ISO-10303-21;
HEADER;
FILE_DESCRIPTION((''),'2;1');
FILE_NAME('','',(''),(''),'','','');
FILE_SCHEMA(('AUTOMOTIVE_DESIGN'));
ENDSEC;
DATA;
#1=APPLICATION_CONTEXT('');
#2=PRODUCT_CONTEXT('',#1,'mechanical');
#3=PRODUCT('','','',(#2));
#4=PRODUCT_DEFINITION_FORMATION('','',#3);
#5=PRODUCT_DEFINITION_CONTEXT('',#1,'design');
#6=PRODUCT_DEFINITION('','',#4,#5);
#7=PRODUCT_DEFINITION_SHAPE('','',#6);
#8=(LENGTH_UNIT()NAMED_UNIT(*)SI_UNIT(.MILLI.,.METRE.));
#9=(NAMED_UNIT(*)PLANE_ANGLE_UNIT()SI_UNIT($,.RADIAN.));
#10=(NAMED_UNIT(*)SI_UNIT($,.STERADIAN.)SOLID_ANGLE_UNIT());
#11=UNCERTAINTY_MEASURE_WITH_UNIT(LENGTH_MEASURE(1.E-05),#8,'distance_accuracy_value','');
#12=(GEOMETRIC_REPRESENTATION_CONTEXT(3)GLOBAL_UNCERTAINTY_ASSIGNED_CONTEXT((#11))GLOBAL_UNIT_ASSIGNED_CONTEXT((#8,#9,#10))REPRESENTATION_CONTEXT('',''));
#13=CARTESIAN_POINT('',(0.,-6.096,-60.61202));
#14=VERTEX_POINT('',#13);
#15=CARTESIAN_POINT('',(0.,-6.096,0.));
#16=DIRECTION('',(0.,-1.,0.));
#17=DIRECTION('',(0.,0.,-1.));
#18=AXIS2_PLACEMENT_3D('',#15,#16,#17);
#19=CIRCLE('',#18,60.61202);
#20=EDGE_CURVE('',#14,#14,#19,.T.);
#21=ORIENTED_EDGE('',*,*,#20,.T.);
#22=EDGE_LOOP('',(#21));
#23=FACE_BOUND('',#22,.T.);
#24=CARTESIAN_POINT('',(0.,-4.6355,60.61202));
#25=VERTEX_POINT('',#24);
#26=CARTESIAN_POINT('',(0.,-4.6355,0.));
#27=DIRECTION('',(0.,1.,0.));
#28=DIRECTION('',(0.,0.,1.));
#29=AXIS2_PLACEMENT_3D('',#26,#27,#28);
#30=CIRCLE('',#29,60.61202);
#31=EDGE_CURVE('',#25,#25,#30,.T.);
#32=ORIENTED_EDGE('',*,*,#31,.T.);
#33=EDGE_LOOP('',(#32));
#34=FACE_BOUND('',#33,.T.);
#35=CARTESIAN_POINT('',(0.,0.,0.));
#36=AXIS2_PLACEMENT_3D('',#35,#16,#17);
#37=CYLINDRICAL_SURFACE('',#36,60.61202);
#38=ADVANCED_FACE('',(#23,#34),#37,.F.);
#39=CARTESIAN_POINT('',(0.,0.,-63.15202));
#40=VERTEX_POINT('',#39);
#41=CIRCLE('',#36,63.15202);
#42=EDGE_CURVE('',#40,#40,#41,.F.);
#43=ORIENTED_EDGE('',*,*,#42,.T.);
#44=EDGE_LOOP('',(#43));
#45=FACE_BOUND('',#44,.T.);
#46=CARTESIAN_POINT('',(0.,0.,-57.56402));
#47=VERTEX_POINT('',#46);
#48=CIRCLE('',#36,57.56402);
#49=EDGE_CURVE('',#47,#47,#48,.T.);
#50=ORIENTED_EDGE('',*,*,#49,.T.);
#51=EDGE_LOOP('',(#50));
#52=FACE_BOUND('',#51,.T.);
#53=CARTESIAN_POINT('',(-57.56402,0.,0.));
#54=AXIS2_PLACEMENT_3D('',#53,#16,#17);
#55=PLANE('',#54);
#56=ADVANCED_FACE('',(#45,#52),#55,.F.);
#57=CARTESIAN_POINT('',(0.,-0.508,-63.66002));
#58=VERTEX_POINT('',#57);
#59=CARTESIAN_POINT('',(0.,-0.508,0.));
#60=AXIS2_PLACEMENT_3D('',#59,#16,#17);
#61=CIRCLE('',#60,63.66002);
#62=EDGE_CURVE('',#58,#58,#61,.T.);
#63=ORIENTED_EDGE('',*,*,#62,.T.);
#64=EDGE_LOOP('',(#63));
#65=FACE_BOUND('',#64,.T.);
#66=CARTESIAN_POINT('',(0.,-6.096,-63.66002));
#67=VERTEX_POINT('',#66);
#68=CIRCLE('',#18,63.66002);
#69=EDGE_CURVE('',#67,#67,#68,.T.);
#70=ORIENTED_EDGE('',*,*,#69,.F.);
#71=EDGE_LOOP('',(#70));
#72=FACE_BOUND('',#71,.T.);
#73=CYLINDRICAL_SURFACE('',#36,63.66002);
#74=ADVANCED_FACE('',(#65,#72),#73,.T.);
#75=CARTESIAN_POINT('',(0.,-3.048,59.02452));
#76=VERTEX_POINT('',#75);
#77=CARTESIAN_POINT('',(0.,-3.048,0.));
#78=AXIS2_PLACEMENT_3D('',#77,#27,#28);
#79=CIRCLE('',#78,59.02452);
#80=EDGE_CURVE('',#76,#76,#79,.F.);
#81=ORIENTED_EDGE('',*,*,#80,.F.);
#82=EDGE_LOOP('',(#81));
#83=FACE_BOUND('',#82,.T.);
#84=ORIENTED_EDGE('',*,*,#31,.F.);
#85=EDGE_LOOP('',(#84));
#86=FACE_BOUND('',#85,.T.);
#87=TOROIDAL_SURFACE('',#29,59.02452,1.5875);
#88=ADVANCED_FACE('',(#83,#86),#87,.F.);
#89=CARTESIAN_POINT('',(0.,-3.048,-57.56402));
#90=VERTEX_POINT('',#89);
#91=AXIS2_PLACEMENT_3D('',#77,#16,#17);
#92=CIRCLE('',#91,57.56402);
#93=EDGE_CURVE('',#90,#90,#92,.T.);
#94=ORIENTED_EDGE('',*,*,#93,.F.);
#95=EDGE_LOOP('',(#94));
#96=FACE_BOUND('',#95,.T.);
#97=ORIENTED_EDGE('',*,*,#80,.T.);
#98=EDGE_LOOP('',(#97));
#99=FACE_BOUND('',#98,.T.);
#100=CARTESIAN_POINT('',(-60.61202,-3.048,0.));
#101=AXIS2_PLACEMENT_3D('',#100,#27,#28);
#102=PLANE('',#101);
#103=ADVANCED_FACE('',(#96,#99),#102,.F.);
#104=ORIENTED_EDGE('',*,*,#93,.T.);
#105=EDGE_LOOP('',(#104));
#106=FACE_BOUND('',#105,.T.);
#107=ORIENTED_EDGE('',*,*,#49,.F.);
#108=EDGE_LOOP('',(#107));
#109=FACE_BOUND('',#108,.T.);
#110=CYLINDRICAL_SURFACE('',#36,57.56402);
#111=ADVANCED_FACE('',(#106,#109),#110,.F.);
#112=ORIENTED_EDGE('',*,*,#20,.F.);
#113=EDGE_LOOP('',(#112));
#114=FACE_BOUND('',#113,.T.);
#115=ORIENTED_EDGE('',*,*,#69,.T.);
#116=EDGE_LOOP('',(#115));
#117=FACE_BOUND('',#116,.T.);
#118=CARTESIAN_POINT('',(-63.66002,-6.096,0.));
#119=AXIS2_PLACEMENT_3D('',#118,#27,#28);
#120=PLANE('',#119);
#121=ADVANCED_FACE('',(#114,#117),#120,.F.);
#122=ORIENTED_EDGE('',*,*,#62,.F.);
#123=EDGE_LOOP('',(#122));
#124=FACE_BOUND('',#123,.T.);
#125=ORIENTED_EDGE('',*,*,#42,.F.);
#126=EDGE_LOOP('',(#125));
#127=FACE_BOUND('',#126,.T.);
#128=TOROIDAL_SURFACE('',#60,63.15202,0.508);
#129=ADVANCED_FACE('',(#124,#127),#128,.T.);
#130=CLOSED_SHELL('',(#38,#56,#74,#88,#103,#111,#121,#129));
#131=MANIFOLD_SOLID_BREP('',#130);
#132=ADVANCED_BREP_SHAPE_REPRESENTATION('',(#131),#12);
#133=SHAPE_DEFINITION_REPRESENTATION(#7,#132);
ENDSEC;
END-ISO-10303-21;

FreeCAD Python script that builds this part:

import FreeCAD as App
import Part
import Sketcher
Q = App.Units.Quantity


def edges_at(feature, points):
    """Names of the edges that pass closest to the given points."""
    edges = feature.Shape.Edges
    near = lambda p: min(range(len(edges)), key=lambda i: edges[i].distToShape(Part.Vertex(*p))[0])
    return sorted({f"Edge{near(p) + 1}" for p in points})


def add_polygon(sketch, points):
    """Adds a closed chain of lines whose ends are joined by coincident constraints."""
    first, n = sketch.GeometryCount, len(points)
    for a, b in zip(points, points[1:] + points[:1]):
        sketch.addGeometry(Part.LineSegment(App.Vector(*a, 0), App.Vector(*b, 0)), False)
    for i in range(n):
        sketch.addConstraint(Sketcher.Constraint("Coincident", first + i, 2, first + (i + 1) % n, 1))

doc = App.newDocument("Part")
body = doc.addObject("PartDesign::Body", "Body")

# Sketch on XY plane
sketch1 = body.newObject("Sketcher::SketchObject", "Sketch")
sketch1.AttachmentSupport = (doc.getObject("XY_Plane"), [""])
sketch1.MapMode = "FlatFace"
add_polygon(sketch1, [(-57.56402, 0), (-63.66002, 0), (-63.66002, -6.096), (-60.61202, -6.096), (-60.61202, -3.048), (-57.56402, -3.048)])  # lines 0-5
sketch1.addConstraint(Sketcher.Constraint("Horizontal", 0))
sketch1.addConstraint(Sketcher.Constraint("Vertical", 1))
sketch1.addConstraint(Sketcher.Constraint("Horizontal", 2))
sketch1.addConstraint(Sketcher.Constraint("Vertical", 3))
sketch1.addConstraint(Sketcher.Constraint("Horizontal", 4))
sketch1.addConstraint(Sketcher.Constraint("Vertical", 5))
sketch1.addConstraint(Sketcher.Constraint("PointOnObject", 0, 2, -1))
sketch1.addConstraint(Sketcher.Constraint("Equal", 2, 4))
sketch1.addConstraint(Sketcher.Constraint("Equal", 0, 1))
sketch1.addConstraint(Sketcher.Constraint("Equal", 4, 3))
sketch1.addConstraint(Sketcher.Constraint("DistanceX", 0, 2, 0, 1, Q("0.24 in")))
sketch1.addConstraint(Sketcher.Constraint("DistanceX", 0, 2, -1, 1, Q("2.5063 in")))
revolution = body.newObject("PartDesign::Revolution", "Revolution")
revolution.Profile = sketch1
revolution.ReferenceAxis = (sketch1, ["V_Axis"])
revolution.Angle = 360
doc.recompute()

fillet = body.newObject("PartDesign::Fillet", "Fillet")
fillet.Base = (revolution, edges_at(revolution, [(0, -3.048, 60.612)]))
fillet.Radius = Q("0.0625 in")
doc.recompute()

fillet2 = body.newObject("PartDesign::Fillet", "Fillet001")
fillet2.Base = (fillet, edges_at(fillet, [(0, 0, 63.66)]))
fillet2.Radius = Q("0.02 in")

doc.recompute()
